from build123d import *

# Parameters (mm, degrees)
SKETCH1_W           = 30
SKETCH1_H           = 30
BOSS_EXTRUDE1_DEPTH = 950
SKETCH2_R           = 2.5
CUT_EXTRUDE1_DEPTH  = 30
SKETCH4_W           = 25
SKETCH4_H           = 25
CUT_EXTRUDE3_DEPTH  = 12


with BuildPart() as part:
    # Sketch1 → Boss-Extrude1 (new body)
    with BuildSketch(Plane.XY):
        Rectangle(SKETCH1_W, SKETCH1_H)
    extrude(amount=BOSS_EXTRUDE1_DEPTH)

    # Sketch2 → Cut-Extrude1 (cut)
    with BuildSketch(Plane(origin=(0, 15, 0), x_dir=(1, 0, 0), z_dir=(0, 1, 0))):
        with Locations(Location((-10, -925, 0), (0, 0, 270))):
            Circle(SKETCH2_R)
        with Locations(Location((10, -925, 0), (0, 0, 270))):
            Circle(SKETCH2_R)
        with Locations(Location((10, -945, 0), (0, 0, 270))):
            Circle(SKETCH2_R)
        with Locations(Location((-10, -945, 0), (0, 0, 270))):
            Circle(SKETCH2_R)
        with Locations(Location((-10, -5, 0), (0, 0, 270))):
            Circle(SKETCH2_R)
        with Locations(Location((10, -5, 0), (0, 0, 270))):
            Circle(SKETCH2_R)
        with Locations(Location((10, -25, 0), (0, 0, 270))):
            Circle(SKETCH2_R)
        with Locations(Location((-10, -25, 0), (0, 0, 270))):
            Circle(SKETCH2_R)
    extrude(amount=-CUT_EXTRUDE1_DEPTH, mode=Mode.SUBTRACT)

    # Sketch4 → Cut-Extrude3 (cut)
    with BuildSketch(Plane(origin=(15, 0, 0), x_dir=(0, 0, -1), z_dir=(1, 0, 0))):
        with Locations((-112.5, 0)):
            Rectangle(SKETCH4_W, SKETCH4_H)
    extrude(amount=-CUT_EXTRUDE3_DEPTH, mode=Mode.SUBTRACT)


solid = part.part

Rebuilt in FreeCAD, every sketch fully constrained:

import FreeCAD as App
import Part
import Sketcher

V = App.Vector

doc = App.newDocument("Part")
body = doc.addObject("PartDesign::Body", "Body")

# Sketch on XY plane
sketch1 = body.newObject("Sketcher::SketchObject", "Sketch")
sketch1.AttachmentSupport = (doc.getObject("XY_Plane"), [""])
sketch1.MapMode = "FlatFace"
sketch1.addGeometry([
    Part.LineSegment(V(-15, 15, 0), V(-15, -15, 0)),
    Part.LineSegment(V(-15, -15, 0), V(15, -15, 0)),
    Part.LineSegment(V(15, -15, 0), V(15, 15, 0)),
    Part.LineSegment(V(15, 15, 0), V(-15, 15, 0)),
], False)
sketch1.addConstraint([
    Sketcher.Constraint("Coincident", 0, 2, 1, 1),
    Sketcher.Constraint("Coincident", 1, 2, 2, 1),
    Sketcher.Constraint("Coincident", 2, 2, 3, 1),
    Sketcher.Constraint("Coincident", 3, 2, 0, 1),
    Sketcher.Constraint("Vertical", 0),
    Sketcher.Constraint("Horizontal", 1),
    Sketcher.Constraint("Vertical", 2),
    Sketcher.Constraint("Horizontal", 3),
    Sketcher.Constraint("Symmetric", 0, 2, 2, 2, -1, 1),
    Sketcher.Constraint("Equal", 3, 0),
    Sketcher.Constraint("DistanceX", 1, 1, 1, 2, 30.0),
])
pad1 = body.newObject("PartDesign::Pad", "Pad")
pad1.Profile = sketch1
pad1.Length = 950

# Sketch on XZ plane
sketch2 = body.newObject("Sketcher::SketchObject", "Sketch001")
sketch2.AttachmentSupport = (doc.getObject("XZ_Plane"), [""])
sketch2.MapMode = "FlatFace"
sketch2.AttachmentOffset = App.Placement(V(0, 0, -15), App.Rotation())
sketch2.addGeometry([
    Part.Circle(V(-10, 925, 0), V(0, 0, 1), 2.5),  # 0
    Part.Circle(V(10, 925, 0), V(0, 0, 1), 2.5),  # 1
    Part.Circle(V(10, 945, 0), V(0, 0, 1), 2.5),  # 2
    Part.Circle(V(-10, 945, 0), V(0, 0, 1), 2.5),  # 3
    Part.Circle(V(-10, 5, 0), V(0, 0, 1), 2.5),  # 4
    Part.Circle(V(10, 5, 0), V(0, 0, 1), 2.5),  # 5
    Part.Circle(V(10, 25, 0), V(0, 0, 1), 2.5),  # 6
    Part.Circle(V(-10, 25, 0), V(0, 0, 1), 2.5),  # 7
], False)
sketch2.addConstraint([
    Sketcher.Constraint("Equal", 0, 1),
    Sketcher.Constraint("Equal", 1, 2),
    Sketcher.Constraint("Equal", 2, 3),
    Sketcher.Constraint("Equal", 3, 4),
    Sketcher.Constraint("Equal", 4, 5),
    Sketcher.Constraint("Equal", 5, 6),
    Sketcher.Constraint("Equal", 6, 7),
    Sketcher.Constraint("Symmetric", 0, 3, 1, 3, -2),
    Sketcher.Constraint("Symmetric", 2, 3, 3, 3, -2),
    Sketcher.Constraint("Symmetric", 4, 3, 5, 3, -2),
    Sketcher.Constraint("Symmetric", 6, 3, 7, 3, -2),
    Sketcher.Constraint("Vertical", 1, 3, 2, 3),
    Sketcher.Constraint("Vertical", 3, 3, 4, 3),
    Sketcher.Constraint("Vertical", 5, 3, 6, 3),
    Sketcher.Constraint("Diameter", 0, 5.0),
    Sketcher.Constraint("DistanceX", 0, 3, -1, 1, 10.0),
    Sketcher.Constraint("DistanceY", -1, 1, 0, 3, 925.0),
    Sketcher.Constraint("DistanceY", -1, 1, 2, 3, 945.0),
    Sketcher.Constraint("DistanceY", -1, 1, 4, 3, 5.0),
    Sketcher.Constraint("DistanceY", -1, 1, 6, 3, 25.0),
])
pocket1 = body.newObject("PartDesign::Pocket", "Pocket")
pocket1.Profile = sketch2
pocket1.Length = 30
pocket1.Reversed = True

# Sketch on YZ plane
sketch3 = body.newObject("Sketcher::SketchObject", "Sketch002")
sketch3.AttachmentSupport = (doc.getObject("YZ_Plane"), [""])
sketch3.MapMode = "FlatFace"
sketch3.AttachmentOffset = App.Placement(V(0, 0, 15), App.Rotation())
sketch3.addGeometry([
    Part.LineSegment(V(12, 125, 0), V(-12, 125, 0)),
    Part.LineSegment(V(-12, 125, 0), V(-12, 100, 0)),
    Part.LineSegment(V(-12, 100, 0), V(12, 100, 0)),
    Part.LineSegment(V(12, 100, 0), V(12, 125, 0)),
], False)
sketch3.addConstraint([
    Sketcher.Constraint("Coincident", 0, 2, 1, 1),
    Sketcher.Constraint("Coincident", 1, 2, 2, 1),
    Sketcher.Constraint("Coincident", 2, 2, 3, 1),
    Sketcher.Constraint("Coincident", 3, 2, 0, 1),
    Sketcher.Constraint("Horizontal", 0),
    Sketcher.Constraint("Vertical", 1),
    Sketcher.Constraint("Horizontal", 2),
    Sketcher.Constraint("Vertical", 3),
    Sketcher.Constraint("Equal", 2, 1),
    Sketcher.Constraint("DistanceX", 0, 2, 0, 1, 25.0),
    Sketcher.Constraint("DistanceY", -1, 1, 0, 2, 125.0),
    Sketcher.Constraint("DistanceX", 0, 2, -1, 1, 12.5),
])
pocket2 = body.newObject("PartDesign::Pocket", "Pocket001")
pocket2.Profile = sketch3
pocket2.Length = 12

doc.recompute()
